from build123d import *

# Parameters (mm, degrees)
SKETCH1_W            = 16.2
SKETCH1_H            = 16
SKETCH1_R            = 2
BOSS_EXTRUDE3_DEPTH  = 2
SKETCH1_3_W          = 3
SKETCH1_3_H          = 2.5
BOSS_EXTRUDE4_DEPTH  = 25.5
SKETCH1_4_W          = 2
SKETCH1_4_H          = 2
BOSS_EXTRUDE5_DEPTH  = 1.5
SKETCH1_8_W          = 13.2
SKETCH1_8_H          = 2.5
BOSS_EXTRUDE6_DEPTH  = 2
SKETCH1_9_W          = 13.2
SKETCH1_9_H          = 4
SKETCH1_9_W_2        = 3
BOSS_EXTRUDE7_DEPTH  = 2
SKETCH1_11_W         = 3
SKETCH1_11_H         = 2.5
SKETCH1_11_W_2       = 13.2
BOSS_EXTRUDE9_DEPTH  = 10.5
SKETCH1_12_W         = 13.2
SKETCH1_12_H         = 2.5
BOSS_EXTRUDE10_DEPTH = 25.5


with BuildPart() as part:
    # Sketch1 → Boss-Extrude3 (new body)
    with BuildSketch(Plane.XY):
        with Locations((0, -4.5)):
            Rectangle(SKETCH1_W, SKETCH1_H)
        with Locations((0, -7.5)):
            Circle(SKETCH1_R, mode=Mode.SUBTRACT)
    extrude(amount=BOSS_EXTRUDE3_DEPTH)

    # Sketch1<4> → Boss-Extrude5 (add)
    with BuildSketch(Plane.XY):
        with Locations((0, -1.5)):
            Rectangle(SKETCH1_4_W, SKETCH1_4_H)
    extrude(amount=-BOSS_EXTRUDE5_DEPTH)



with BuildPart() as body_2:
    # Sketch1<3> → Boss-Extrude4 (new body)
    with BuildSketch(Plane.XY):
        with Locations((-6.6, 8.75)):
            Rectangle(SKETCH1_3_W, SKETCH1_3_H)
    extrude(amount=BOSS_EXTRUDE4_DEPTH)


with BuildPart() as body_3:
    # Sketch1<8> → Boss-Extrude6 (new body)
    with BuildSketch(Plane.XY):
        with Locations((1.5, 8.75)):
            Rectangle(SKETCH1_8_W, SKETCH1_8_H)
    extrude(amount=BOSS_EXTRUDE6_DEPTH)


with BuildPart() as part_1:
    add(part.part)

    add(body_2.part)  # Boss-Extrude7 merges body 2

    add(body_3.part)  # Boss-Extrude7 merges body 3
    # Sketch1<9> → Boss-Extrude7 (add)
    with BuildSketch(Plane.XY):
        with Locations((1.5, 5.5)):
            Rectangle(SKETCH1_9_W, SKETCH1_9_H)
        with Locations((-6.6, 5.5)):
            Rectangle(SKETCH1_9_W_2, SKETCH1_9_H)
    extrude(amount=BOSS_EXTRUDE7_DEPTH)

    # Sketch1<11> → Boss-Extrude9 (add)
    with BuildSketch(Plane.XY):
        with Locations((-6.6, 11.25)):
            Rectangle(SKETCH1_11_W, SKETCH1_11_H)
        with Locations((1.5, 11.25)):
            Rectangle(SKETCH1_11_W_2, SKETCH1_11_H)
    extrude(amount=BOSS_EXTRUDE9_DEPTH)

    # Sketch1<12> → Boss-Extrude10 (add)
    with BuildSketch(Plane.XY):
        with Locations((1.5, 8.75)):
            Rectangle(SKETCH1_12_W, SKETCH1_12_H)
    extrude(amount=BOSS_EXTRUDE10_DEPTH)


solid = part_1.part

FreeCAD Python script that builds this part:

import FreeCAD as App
import Part
import Sketcher


def add_polygon(sketch, points):
    """Adds a closed chain of lines whose ends are joined by coincident constraints."""
    first, n = sketch.GeometryCount, len(points)
    for a, b in zip(points, points[1:] + points[:1]):
        sketch.addGeometry(Part.LineSegment(App.Vector(*a, 0), App.Vector(*b, 0)), False)
    for i in range(n):
        sketch.addConstraint(Sketcher.Constraint("Coincident", first + i, 2, first + (i + 1) % n, 1))

doc = App.newDocument("Part")
params = doc.addObject("Spreadsheet::Sheet", "Params")
for row, (alias, value) in enumerate([
    ("sketch1_diameter", "4 mm"),
    ("sketch1_height", "16 mm"),
    ("sketch1_width", "16.2 mm"),
    ("pad1_length", "2 mm"),
    ("sketch2_width", "2 mm"),
    ("pad2_length", "1.5 mm"),
    ("sketch3_width", "3 mm"),
    ("sketch3_height", "2.5 mm"),
    ("pad3_length", "25.5 mm"),
    ("sketch4_width", "13.2 mm"),
    ("sketch4_height", "2.5 mm"),
    ("pad4_length", "2 mm"),
    ("sketch5_height", "4 mm"),
    ("sketch5_width", "16.2 mm"),
    ("pad5_length", "2 mm"),
    ("sketch6_width", "16.2 mm"),
    ("sketch6_height", "2.5 mm"),
    ("pad6_length", "10.5 mm"),
    ("sketch7_width", "13.2 mm"),
    ("sketch7_height", "2.5 mm"),
    ("pad7_length", "25.5 mm"),
], start=1):
    params.set(f"A{row}", alias)
    params.set(f"B{row}", "=" + value)
    params.setAlias(f"B{row}", alias)

body = doc.addObject("PartDesign::Body", "Body")

# Sketch on XY plane
sketch1 = doc.addObject("Sketcher::SketchObject", "Sketch")
body.addObject(sketch1)
sketch1.AttachmentSupport = (doc.XY_Plane, [""])
sketch1.MapMode = "FlatFace"
add_polygon(sketch1, [(-8.1, 3.5), (-8.1, -12.5), (8.1, -12.5), (8.1, 3.5)])  # lines 0-3
sketch1.addGeometry(Part.Circle(App.Vector(0, -7.5, 0), App.Vector(0, 0, 1), 2), False)  # 4
sketch1.addConstraint(Sketcher.Constraint("Vertical", 0))
sketch1.addConstraint(Sketcher.Constraint("Horizontal", 1))
sketch1.addConstraint(Sketcher.Constraint("Vertical", 2))
sketch1.addConstraint(Sketcher.Constraint("Horizontal", 3))
sketch1.addConstraint(Sketcher.Constraint("PointOnObject", 4, 3, -2))
sketch1.addConstraint(Sketcher.Constraint("Diameter", 4, 4.0))
sketch1.addConstraint(Sketcher.Constraint("DistanceY", 0, 2, 0, 1, 16.0))
sketch1.addConstraint(Sketcher.Constraint("DistanceX", 1, 1, 1, 2, 16.2))
sketch1.addConstraint(Sketcher.Constraint("DistanceY", 0, 2, 4, 3, 5.0))
sketch1.addConstraint(Sketcher.Constraint("DistanceY", 4, 3, -1, 1, 7.5))
sketch1.addConstraint(Sketcher.Constraint("DistanceX", 0, 2, -1, 1, 8.1))
sketch1.setExpression("Constraints[9]", "Params.sketch1_diameter")
sketch1.setExpression("Constraints[10]", "Params.sketch1_height")
sketch1.setExpression("Constraints[11]", "Params.sketch1_width")
pad1 = doc.addObject("PartDesign::Pad", "Pad")
body.addObject(pad1)
pad1.Profile = sketch1
pad1.setExpression("Length", "Params.pad1_length")

# Sketch on XY plane
sketch2 = doc.addObject("Sketcher::SketchObject", "Sketch001")
body.addObject(sketch2)
sketch2.AttachmentSupport = (doc.XY_Plane, [""])
sketch2.MapMode = "FlatFace"
add_polygon(sketch2, [(-1, -0.5), (-1, -2.5), (1, -2.5), (1, -0.5)])  # lines 0-3
sketch2.addConstraint(Sketcher.Constraint("Vertical", 0))
sketch2.addConstraint(Sketcher.Constraint("Horizontal", 1))
sketch2.addConstraint(Sketcher.Constraint("Vertical", 2))
sketch2.addConstraint(Sketcher.Constraint("Horizontal", 3))
sketch2.addConstraint(Sketcher.Constraint("Equal", 3, 0))
sketch2.addConstraint(Sketcher.Constraint("DistanceX", 1, 1, 1, 2, 2.0))
sketch2.addConstraint(Sketcher.Constraint("DistanceX", 0, 2, -1, 1, 1.0))
sketch2.addConstraint(Sketcher.Constraint("DistanceY", 0, 2, -1, 1, 2.5))
sketch2.setExpression("Constraints[9]", "Params.sketch2_width")
pad2 = doc.addObject("PartDesign::Pad", "Pad001")
body.addObject(pad2)
pad2.Profile = sketch2
pad2.setExpression("Length", "Params.pad2_length")
pad2.Reversed = True
body2 = doc.addObject("PartDesign::Body", "Body001")

# Sketch on XY plane
sketch3 = doc.addObject("Sketcher::SketchObject", "Sketch002")
body2.addObject(sketch3)
sketch3.AttachmentSupport = (doc.getObject("XY_Plane001"), [""])
sketch3.MapMode = "FlatFace"
add_polygon(sketch3, [(-8.1, 10), (-8.1, 7.5), (-5.1, 7.5), (-5.1, 10)])  # lines 0-3
sketch3.addConstraint(Sketcher.Constraint("Vertical", 0))
sketch3.addConstraint(Sketcher.Constraint("Horizontal", 1))
sketch3.addConstraint(Sketcher.Constraint("Vertical", 2))
sketch3.addConstraint(Sketcher.Constraint("Horizontal", 3))
sketch3.addConstraint(Sketcher.Constraint("DistanceX", 1, 1, 1, 2, 3.0))
sketch3.addConstraint(Sketcher.Constraint("DistanceY", 0, 2, 0, 1, 2.5))
sketch3.addConstraint(Sketcher.Constraint("DistanceY", -1, 1, 2, 2, 10.0))
sketch3.addConstraint(Sketcher.Constraint("DistanceX", 0, 2, -1, 1, 8.1))
sketch3.setExpression("Constraints[8]", "Params.sketch3_width")
sketch3.setExpression("Constraints[9]", "Params.sketch3_height")
pad3 = doc.addObject("PartDesign::Pad", "Pad002")
body2.addObject(pad3)
pad3.Profile = sketch3
pad3.setExpression("Length", "Params.pad3_length")
body3 = doc.addObject("PartDesign::Body", "Body002")

# Sketch on XY plane
sketch4 = doc.addObject("Sketcher::SketchObject", "Sketch003")
body3.addObject(sketch4)
sketch4.AttachmentSupport = (doc.getObject("XY_Plane002"), [""])
sketch4.MapMode = "FlatFace"
add_polygon(sketch4, [(-5.1, 10), (-5.1, 7.5), (8.1, 7.5), (8.1, 10)])  # lines 0-3
sketch4.addConstraint(Sketcher.Constraint("Vertical", 0))
sketch4.addConstraint(Sketcher.Constraint("Horizontal", 1))
sketch4.addConstraint(Sketcher.Constraint("Vertical", 2))
sketch4.addConstraint(Sketcher.Constraint("Horizontal", 3))
sketch4.addConstraint(Sketcher.Constraint("DistanceX", 1, 1, 1, 2, 13.2))
sketch4.addConstraint(Sketcher.Constraint("DistanceY", 0, 2, 0, 1, 2.5))
sketch4.addConstraint(Sketcher.Constraint("DistanceY", -1, 1, 2, 2, 10.0))
sketch4.addConstraint(Sketcher.Constraint("DistanceX", 0, 2, -1, 1, 5.1))
sketch4.setExpression("Constraints[8]", "Params.sketch4_width")
sketch4.setExpression("Constraints[9]", "Params.sketch4_height")
pad4 = doc.addObject("PartDesign::Pad", "Pad003")
body3.addObject(pad4)
pad4.Profile = sketch4
pad4.setExpression("Length", "Params.pad4_length")
body.AllowCompound = True
doc.recompute()

boolean = doc.addObject("PartDesign::Boolean", "Boolean")
body.addObject(boolean)
boolean.Type = "Fuse"
boolean.addObjects([body2])
doc.recompute()

boolean2 = doc.addObject("PartDesign::Boolean", "Boolean001")
body.addObject(boolean2)
boolean2.Type = "Fuse"
boolean2.addObjects([body3])

# Sketch on XY plane
sketch5 = doc.addObject("Sketcher::SketchObject", "Sketch004")
body.addObject(sketch5)
sketch5.AttachmentSupport = (doc.XY_Plane, [""])
sketch5.MapMode = "FlatFace"
add_polygon(sketch5, [(8.1, 3.5), (8.1, 7.5), (-8.1, 7.5), (-8.1, 3.5)])  # lines 0-3
sketch5.addConstraint(Sketcher.Constraint("Vertical", 0))
sketch5.addConstraint(Sketcher.Constraint("Horizontal", 1))
sketch5.addConstraint(Sketcher.Constraint("Vertical", 2))
sketch5.addConstraint(Sketcher.Constraint("Horizontal", 3))
sketch5.addConstraint(Sketcher.Constraint("DistanceY", 0, 1, 0, 2, 4.0))
sketch5.addConstraint(Sketcher.Constraint("DistanceX", 1, 2, 1, 1, 16.2))
sketch5.addConstraint(Sketcher.Constraint("DistanceX", -1, 1, 0, 2, 8.1))
sketch5.addConstraint(Sketcher.Constraint("DistanceY", -1, 1, 0, 2, 7.5))
sketch5.setExpression("Constraints[8]", "Params.sketch5_height")
sketch5.setExpression("Constraints[9]", "Params.sketch5_width")
pad5 = doc.addObject("PartDesign::Pad", "Pad004")
body.addObject(pad5)
pad5.Profile = sketch5
pad5.setExpression("Length", "Params.pad5_length")

# Sketch on XY plane
sketch6 = doc.addObject("Sketcher::SketchObject", "Sketch005")
body.addObject(sketch6)
sketch6.AttachmentSupport = (doc.XY_Plane, [""])
sketch6.MapMode = "FlatFace"
add_polygon(sketch6, [(-8.1, 12.5), (-8.1, 10), (8.1, 10), (8.1, 12.5)])  # lines 0-3
sketch6.addConstraint(Sketcher.Constraint("Vertical", 0))
sketch6.addConstraint(Sketcher.Constraint("Horizontal", 1))
sketch6.addConstraint(Sketcher.Constraint("Vertical", 2))
sketch6.addConstraint(Sketcher.Constraint("Horizontal", 3))
sketch6.addConstraint(Sketcher.Constraint("DistanceX", 1, 1, 1, 2, 16.2))
sketch6.addConstraint(Sketcher.Constraint("DistanceY", 0, 2, 0, 1, 2.5))
sketch6.addConstraint(Sketcher.Constraint("DistanceY", -1, 1, 0, 2, 10.0))
sketch6.addConstraint(Sketcher.Constraint("DistanceX", 0, 2, -1, 1, 8.1))
sketch6.setExpression("Constraints[8]", "Params.sketch6_width")
sketch6.setExpression("Constraints[9]", "Params.sketch6_height")
pad6 = doc.addObject("PartDesign::Pad", "Pad005")
body.addObject(pad6)
pad6.Profile = sketch6
pad6.setExpression("Length", "Params.pad6_length")

# Sketch on XY plane
sketch7 = doc.addObject("Sketcher::SketchObject", "Sketch006")
body.addObject(sketch7)
sketch7.AttachmentSupport = (doc.XY_Plane, [""])
sketch7.MapMode = "FlatFace"
add_polygon(sketch7, [(-5.1, 10), (-5.1, 7.5), (8.1, 7.5), (8.1, 10)])  # lines 0-3
sketch7.addConstraint(Sketcher.Constraint("Vertical", 0))
sketch7.addConstraint(Sketcher.Constraint("Horizontal", 1))
sketch7.addConstraint(Sketcher.Constraint("Vertical", 2))
sketch7.addConstraint(Sketcher.Constraint("Horizontal", 3))
sketch7.addConstraint(Sketcher.Constraint("DistanceX", 1, 1, 1, 2, 13.2))
sketch7.addConstraint(Sketcher.Constraint("DistanceY", 0, 2, 0, 1, 2.5))
sketch7.addConstraint(Sketcher.Constraint("DistanceY", -1, 1, 2, 2, 10.0))
sketch7.addConstraint(Sketcher.Constraint("DistanceX", 0, 2, -1, 1, 5.1))
sketch7.setExpression("Constraints[8]", "Params.sketch7_width")
sketch7.setExpression("Constraints[9]", "Params.sketch7_height")
pad7 = doc.addObject("PartDesign::Pad", "Pad006")
body.addObject(pad7)
pad7.Profile = sketch7
pad7.setExpression("Length", "Params.pad7_length")

doc.recompute()
